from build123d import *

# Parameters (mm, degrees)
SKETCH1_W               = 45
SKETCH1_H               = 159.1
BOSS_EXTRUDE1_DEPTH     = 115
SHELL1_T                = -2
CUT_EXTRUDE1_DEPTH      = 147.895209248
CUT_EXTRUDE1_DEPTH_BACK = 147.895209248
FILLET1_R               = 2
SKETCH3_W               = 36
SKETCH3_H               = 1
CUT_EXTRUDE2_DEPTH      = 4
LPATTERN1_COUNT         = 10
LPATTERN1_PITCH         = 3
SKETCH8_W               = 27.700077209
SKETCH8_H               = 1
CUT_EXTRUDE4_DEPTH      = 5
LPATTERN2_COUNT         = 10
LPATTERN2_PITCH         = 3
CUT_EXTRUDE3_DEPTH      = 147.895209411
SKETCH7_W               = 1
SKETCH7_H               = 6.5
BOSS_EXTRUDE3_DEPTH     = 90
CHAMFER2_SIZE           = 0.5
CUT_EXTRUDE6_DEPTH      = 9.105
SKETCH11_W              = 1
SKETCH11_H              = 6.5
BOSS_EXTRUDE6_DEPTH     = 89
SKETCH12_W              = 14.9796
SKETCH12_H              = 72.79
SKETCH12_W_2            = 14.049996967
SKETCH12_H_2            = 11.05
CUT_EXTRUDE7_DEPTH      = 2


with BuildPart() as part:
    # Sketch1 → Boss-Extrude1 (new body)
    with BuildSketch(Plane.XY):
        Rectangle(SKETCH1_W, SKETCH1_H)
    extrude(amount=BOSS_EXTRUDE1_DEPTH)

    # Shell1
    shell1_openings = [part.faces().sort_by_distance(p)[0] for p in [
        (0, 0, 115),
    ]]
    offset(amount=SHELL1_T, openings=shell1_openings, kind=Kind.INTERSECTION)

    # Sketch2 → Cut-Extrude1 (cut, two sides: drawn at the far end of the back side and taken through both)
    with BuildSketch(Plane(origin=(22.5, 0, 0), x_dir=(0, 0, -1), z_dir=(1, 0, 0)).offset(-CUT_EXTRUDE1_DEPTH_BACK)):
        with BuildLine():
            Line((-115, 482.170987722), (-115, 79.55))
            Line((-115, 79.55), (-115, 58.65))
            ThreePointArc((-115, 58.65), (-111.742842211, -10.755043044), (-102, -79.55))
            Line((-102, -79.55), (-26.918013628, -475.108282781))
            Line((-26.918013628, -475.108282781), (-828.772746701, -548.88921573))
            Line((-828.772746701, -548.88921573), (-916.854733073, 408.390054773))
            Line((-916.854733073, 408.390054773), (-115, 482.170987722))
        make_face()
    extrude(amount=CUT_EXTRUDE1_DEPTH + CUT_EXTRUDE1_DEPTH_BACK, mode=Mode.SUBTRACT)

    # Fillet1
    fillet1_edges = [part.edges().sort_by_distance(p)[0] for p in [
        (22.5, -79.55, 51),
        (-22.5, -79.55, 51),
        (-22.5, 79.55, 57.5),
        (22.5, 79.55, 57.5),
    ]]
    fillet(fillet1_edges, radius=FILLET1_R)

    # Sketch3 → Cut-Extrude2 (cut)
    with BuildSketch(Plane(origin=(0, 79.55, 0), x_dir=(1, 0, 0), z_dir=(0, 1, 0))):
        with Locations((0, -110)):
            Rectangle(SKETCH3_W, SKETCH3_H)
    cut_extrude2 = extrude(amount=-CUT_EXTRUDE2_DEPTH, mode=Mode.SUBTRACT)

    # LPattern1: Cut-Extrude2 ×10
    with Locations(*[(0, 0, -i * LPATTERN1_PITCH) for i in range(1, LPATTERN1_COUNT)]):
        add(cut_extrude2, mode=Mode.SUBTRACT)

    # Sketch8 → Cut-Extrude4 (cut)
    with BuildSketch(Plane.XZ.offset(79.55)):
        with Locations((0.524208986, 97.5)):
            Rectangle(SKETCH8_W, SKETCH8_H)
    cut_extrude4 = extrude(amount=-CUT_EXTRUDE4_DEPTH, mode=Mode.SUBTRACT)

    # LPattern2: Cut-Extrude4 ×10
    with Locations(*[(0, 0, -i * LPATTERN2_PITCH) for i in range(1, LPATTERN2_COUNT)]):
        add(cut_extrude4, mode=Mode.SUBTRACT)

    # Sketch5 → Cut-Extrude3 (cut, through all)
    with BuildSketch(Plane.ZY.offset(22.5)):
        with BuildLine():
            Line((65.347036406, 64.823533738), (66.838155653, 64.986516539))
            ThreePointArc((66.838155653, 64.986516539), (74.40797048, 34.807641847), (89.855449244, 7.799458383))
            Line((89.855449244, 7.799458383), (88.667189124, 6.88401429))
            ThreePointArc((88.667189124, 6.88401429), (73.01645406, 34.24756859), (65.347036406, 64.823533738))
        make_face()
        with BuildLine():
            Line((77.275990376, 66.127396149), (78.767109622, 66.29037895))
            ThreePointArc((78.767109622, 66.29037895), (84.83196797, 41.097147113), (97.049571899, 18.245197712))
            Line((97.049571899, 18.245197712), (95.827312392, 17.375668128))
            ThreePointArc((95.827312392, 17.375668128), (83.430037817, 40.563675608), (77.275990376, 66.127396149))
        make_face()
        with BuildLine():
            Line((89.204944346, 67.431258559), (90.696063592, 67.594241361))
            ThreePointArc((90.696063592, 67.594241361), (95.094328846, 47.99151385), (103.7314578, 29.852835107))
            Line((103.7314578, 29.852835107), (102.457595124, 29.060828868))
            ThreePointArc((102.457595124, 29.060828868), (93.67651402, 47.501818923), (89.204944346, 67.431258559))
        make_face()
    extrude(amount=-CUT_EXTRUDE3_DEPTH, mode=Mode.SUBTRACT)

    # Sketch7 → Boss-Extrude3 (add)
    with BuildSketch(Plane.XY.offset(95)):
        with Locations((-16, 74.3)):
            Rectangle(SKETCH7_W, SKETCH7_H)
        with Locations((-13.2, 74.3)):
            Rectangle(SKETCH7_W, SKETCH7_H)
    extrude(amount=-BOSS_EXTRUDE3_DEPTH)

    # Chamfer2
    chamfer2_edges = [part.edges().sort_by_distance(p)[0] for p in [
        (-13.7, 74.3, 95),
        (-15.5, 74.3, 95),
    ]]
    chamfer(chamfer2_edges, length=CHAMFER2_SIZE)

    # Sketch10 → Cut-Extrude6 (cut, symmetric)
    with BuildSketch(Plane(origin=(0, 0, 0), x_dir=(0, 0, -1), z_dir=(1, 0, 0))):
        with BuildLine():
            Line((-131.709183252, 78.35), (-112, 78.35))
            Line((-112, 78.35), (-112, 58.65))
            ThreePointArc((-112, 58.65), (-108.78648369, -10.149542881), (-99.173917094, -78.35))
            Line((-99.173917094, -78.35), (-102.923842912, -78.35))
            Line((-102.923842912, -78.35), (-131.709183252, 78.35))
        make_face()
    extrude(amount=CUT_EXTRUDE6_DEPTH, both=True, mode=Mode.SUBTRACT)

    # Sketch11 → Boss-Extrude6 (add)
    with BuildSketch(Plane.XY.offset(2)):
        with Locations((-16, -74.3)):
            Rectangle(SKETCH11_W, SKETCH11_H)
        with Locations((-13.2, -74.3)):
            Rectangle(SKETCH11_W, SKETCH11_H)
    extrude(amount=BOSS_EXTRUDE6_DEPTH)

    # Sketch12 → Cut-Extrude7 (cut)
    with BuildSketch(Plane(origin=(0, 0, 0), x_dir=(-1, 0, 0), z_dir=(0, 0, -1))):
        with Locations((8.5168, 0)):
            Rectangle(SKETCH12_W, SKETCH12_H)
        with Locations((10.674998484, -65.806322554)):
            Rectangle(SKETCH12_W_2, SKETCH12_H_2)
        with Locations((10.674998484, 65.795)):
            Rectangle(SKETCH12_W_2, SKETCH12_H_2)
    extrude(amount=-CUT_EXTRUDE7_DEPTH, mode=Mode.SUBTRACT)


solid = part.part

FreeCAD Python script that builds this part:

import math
import FreeCAD as App
import Part
import Sketcher
from FreeCAD import Vector


def edges_at(feature, points):
    """Names of the edges that pass closest to the given points."""
    edges = feature.Shape.Edges
    near = lambda p: min(range(len(edges)), key=lambda i: edges[i].distToShape(Part.Vertex(*p))[0])
    return sorted({f"Edge{near(p) + 1}" for p in points})


def faces_at(feature, points):
    """Names of the faces that lie closest to the given points."""
    faces = feature.Shape.Faces
    near = lambda p: min(range(len(faces)), key=lambda i: faces[i].distToShape(Part.Vertex(*p))[0])
    return sorted({f"Face{near(p) + 1}" for p in points})

doc = App.newDocument("Part")
body = doc.addObject("PartDesign::Body", "Body")

# Sketch on XY plane
sketch1 = body.newObject("Sketcher::SketchObject", "Sketch")
sketch1.AttachmentSupport = (doc.getObject("XY_Plane"), [""])
sketch1.MapMode = "FlatFace"
sketch1.addGeometry(Part.LineSegment(Vector(-22.5, 79.55, 0), Vector(-22.5, -79.55, 0)), False)
sketch1.addGeometry(Part.LineSegment(Vector(-22.5, -79.55, 0), Vector(22.5, -79.55, 0)), False)
sketch1.addGeometry(Part.LineSegment(Vector(22.5, -79.55, 0), Vector(22.5, 79.55, 0)), False)
sketch1.addGeometry(Part.LineSegment(Vector(22.5, 79.55, 0), Vector(-22.5, 79.55, 0)), False)
sketch1.addConstraint(Sketcher.Constraint("Coincident", 0, 2, 1, 1))
sketch1.addConstraint(Sketcher.Constraint("Coincident", 1, 2, 2, 1))
sketch1.addConstraint(Sketcher.Constraint("Coincident", 2, 2, 3, 1))
sketch1.addConstraint(Sketcher.Constraint("Coincident", 3, 2, 0, 1))
sketch1.addConstraint(Sketcher.Constraint("Vertical", 0))
sketch1.addConstraint(Sketcher.Constraint("Horizontal", 1))
sketch1.addConstraint(Sketcher.Constraint("Vertical", 2))
sketch1.addConstraint(Sketcher.Constraint("Horizontal", 3))
sketch1.addConstraint(Sketcher.Constraint("Symmetric", 0, 2, 2, 2, -1, 1))
sketch1.addConstraint(Sketcher.Constraint("DistanceX", 1, 1, 1, 2, 45.0))
sketch1.addConstraint(Sketcher.Constraint("DistanceY", 0, 2, 0, 1, 159.1))
pad1 = body.newObject("PartDesign::Pad", "Pad")
pad1.Profile = sketch1
pad1.Length = 115
doc.recompute()

thickness = body.newObject("PartDesign::Thickness", "Thickness")
thickness.Base = (pad1, faces_at(pad1, [(0, 0, 115)]))
thickness.Value = 2
thickness.Reversed = True
thickness.Join = "Intersection"

# Sketch on YZ plane
sketch2 = body.newObject("Sketcher::SketchObject", "Sketch001")
sketch2.AttachmentSupport = (doc.getObject("YZ_Plane"), [""])
sketch2.MapMode = "FlatFace"
sketch2.AttachmentOffset = App.Placement(Vector(0, 0, 22.5), App.Rotation())
sketch2.addGeometry(Part.LineSegment(Vector(58.65, 115, 0), Vector(482.170988, 115, 0)), False)
sketch2.addGeometry(Part.LineSegment(Vector(482.170988, 115, 0), Vector(408.390055, 916.854733, 0)), False)
sketch2.addGeometry(Part.LineSegment(Vector(408.390055, 916.854733, 0), Vector(-548.889216, 828.772747, 0)), False)
sketch2.addGeometry(Part.LineSegment(Vector(-548.889216, 828.772747, 0), Vector(-475.108283, 26.918014, 0)), False)
sketch2.addGeometry(Part.LineSegment(Vector(-475.108283, 26.918014, 0), Vector(-79.55, 102, 0)), False)
sketch2.addGeometry(Part.ArcOfCircle(Part.Circle(Vector(58.65, -626.086154, 0), Vector(0, 0, 1), 741.086154), math.radians(90), math.radians(100.747609)), False)
sketch2.addConstraint(Sketcher.Constraint("Coincident", 0, 2, 1, 1))
sketch2.addConstraint(Sketcher.Constraint("Coincident", 1, 2, 2, 1))
sketch2.addConstraint(Sketcher.Constraint("Coincident", 2, 2, 3, 1))
sketch2.addConstraint(Sketcher.Constraint("Coincident", 3, 2, 4, 1))
sketch2.addConstraint(Sketcher.Constraint("Tangent", 4, 2, 5, 2))
sketch2.addConstraint(Sketcher.Constraint("Tangent", 5, 1, 0, 1))
sketch2.addConstraint(Sketcher.Constraint("Horizontal", 0))
sketch2.addConstraint(Sketcher.Constraint("Perpendicular", 1, 2))
sketch2.addConstraint(Sketcher.Constraint("Perpendicular", 2, 3))
sketch2.addConstraint(Sketcher.Constraint("Equal", 1, 3))
sketch2.addConstraint(Sketcher.Constraint("DistanceY", -1, 1, 0, 2, 115.0))
sketch2.addConstraint(Sketcher.Constraint("DistanceY", -1, 1, 4, 2, 102.0))
sketch2.addConstraint(Sketcher.Constraint("DistanceX", 4, 2, 5, 3, 138.2))
sketch2.addConstraint(Sketcher.Constraint("DistanceX", -1, 1, 5, 3, 58.65))
sketch2.addConstraint(Sketcher.Constraint("DistanceY", 5, 3, 2, 2, 1454.858901))
sketch2.addConstraint(Sketcher.Constraint("DistanceX", 0, 1, 0, 2, 423.520988))
sketch2.addConstraint(Sketcher.Constraint("DistanceX", 2, 2, 1, 2, 957.279271))
pocket1 = body.newObject("PartDesign::Pocket", "Pocket")
pocket1.Profile = sketch2
pocket1.Type = "ThroughAll"
pocket1.Midplane = True
doc.recompute()

fillet = body.newObject("PartDesign::Fillet", "Fillet")
fillet.Base = (pocket1, edges_at(pocket1, [
    (22.5, -79.55, 51),
    (-22.5, -79.55, 51),
    (-22.5, 79.55, 57.5),
    (22.5, 79.55, 57.5),
]))
fillet.Radius = 2

# Sketch on XZ plane
sketch3 = body.newObject("Sketcher::SketchObject", "Sketch002")
sketch3.AttachmentSupport = (doc.getObject("XZ_Plane"), [""])
sketch3.MapMode = "FlatFace"
sketch3.AttachmentOffset = App.Placement(Vector(0, 0, -79.55), App.Rotation())
sketch3.addGeometry(Part.LineSegment(Vector(-18, 109.5, 0), Vector(-18, 110.5, 0)), False)
sketch3.addGeometry(Part.LineSegment(Vector(-18, 110.5, 0), Vector(18, 110.5, 0)), False)
sketch3.addGeometry(Part.LineSegment(Vector(18, 110.5, 0), Vector(18, 109.5, 0)), False)
sketch3.addGeometry(Part.LineSegment(Vector(18, 109.5, 0), Vector(-18, 109.5, 0)), False)
sketch3.addConstraint(Sketcher.Constraint("Coincident", 0, 2, 1, 1))
sketch3.addConstraint(Sketcher.Constraint("Coincident", 1, 2, 2, 1))
sketch3.addConstraint(Sketcher.Constraint("Coincident", 2, 2, 3, 1))
sketch3.addConstraint(Sketcher.Constraint("Coincident", 3, 2, 0, 1))
sketch3.addConstraint(Sketcher.Constraint("Vertical", 0))
sketch3.addConstraint(Sketcher.Constraint("Horizontal", 1))
sketch3.addConstraint(Sketcher.Constraint("Vertical", 2))
sketch3.addConstraint(Sketcher.Constraint("Horizontal", 3))
sketch3.addConstraint(Sketcher.Constraint("DistanceX", 1, 1, 1, 2, 36.0))
sketch3.addConstraint(Sketcher.Constraint("DistanceY", 0, 1, 0, 2, 1.0))
sketch3.addConstraint(Sketcher.Constraint("DistanceX", 0, 2, -1, 1, 18.0))
sketch3.addConstraint(Sketcher.Constraint("DistanceY", -1, 1, 0, 2, 110.5))
pocket2 = body.newObject("PartDesign::Pocket", "Pocket001")
pocket2.Profile = sketch3
pocket2.Length = 4
pocket2.Reversed = True
doc.recompute()

linearpattern = body.newObject("PartDesign::LinearPattern", "LinearPattern")
linearpattern.Originals = [pocket2]
linearpattern.Direction = (doc.getObject("Z_Axis"), [""])
linearpattern.Mode = "offset"
linearpattern.Offset = 3
linearpattern.Occurrences = 10
linearpattern.Reversed = True
body.Tip = linearpattern

# Sketch on XZ plane
sketch4 = body.newObject("Sketcher::SketchObject", "Sketch003")
sketch4.AttachmentSupport = (doc.getObject("XZ_Plane"), [""])
sketch4.MapMode = "FlatFace"
sketch4.AttachmentOffset = App.Placement(Vector(0, 0, 79.55), App.Rotation())
sketch4.addGeometry(Part.LineSegment(Vector(-13.32583, 98, 0), Vector(-13.32583, 97, 0)), False)
sketch4.addGeometry(Part.LineSegment(Vector(-13.32583, 97, 0), Vector(14.374248, 97, 0)), False)
sketch4.addGeometry(Part.LineSegment(Vector(14.374248, 97, 0), Vector(14.374248, 98, 0)), False)
sketch4.addGeometry(Part.LineSegment(Vector(14.374248, 98, 0), Vector(-13.32583, 98, 0)), False)
sketch4.addConstraint(Sketcher.Constraint("Coincident", 0, 2, 1, 1))
sketch4.addConstraint(Sketcher.Constraint("Coincident", 1, 2, 2, 1))
sketch4.addConstraint(Sketcher.Constraint("Coincident", 2, 2, 3, 1))
sketch4.addConstraint(Sketcher.Constraint("Coincident", 3, 2, 0, 1))
sketch4.addConstraint(Sketcher.Constraint("Vertical", 0))
sketch4.addConstraint(Sketcher.Constraint("Horizontal", 1))
sketch4.addConstraint(Sketcher.Constraint("Vertical", 2))
sketch4.addConstraint(Sketcher.Constraint("Horizontal", 3))
sketch4.addConstraint(Sketcher.Constraint("DistanceY", 0, 2, 0, 1, 1.0))
sketch4.addConstraint(Sketcher.Constraint("DistanceY", -1, 1, 0, 2, 97.0))
sketch4.addConstraint(Sketcher.Constraint("DistanceX", 1, 1, 1, 2, 27.700077))
sketch4.addConstraint(Sketcher.Constraint("DistanceX", 0, 2, -1, 1, 13.32583))
pocket3 = body.newObject("PartDesign::Pocket", "Pocket002")
pocket3.Profile = sketch4
pocket3.Length = 5
doc.recompute()

linearpattern2 = body.newObject("PartDesign::LinearPattern", "LinearPattern001")
linearpattern2.Originals = [pocket3]
linearpattern2.Direction = (doc.getObject("Z_Axis"), [""])
linearpattern2.Mode = "offset"
linearpattern2.Offset = 3
linearpattern2.Occurrences = 10
linearpattern2.Reversed = True
body.Tip = linearpattern2

# Sketch on YZ plane
sketch5 = body.newObject("Sketcher::SketchObject", "Sketch004")
sketch5.AttachmentSupport = (doc.getObject("YZ_Plane"), [""])
sketch5.MapMode = "FlatFace"
sketch5.AttachmentOffset = App.Placement(Vector(0, 0, -22.5), App.Rotation())
sketch5.addGeometry(Part.LineSegment(Vector(64.986517, 66.838156, 0), Vector(64.823534, 65.347036, 0)), False)
sketch5.addGeometry(Part.ArcOfCircle(Part.Circle(Vector(77.373209, 180.163218, 0), Vector(0, 0, 1), 115.5), math.radians(-127.610913), math.radians(-96.2378)), False)
sketch5.addGeometry(Part.LineSegment(Vector(6.884014, 88.667189, 0), Vector(7.799458, 89.855449, 0)), False)
sketch5.addGeometry(Part.ArcOfCircle(Part.Circle(Vector(77.373209, 180.163218, 0), Vector(0, 0, 1), 114), math.radians(-127.610913), math.radians(-96.2378)), False)
sketch5.addGeometry(Part.LineSegment(Vector(66.290379, 78.76711, 0), Vector(66.127396, 77.27599, 0)), False)
sketch5.addGeometry(Part.ArcOfCircle(Part.Circle(Vector(77.373209, 180.163218, 0), Vector(0, 0, 1), 103.5), math.radians(-125.428488), math.radians(-96.2378)), False)
sketch5.addGeometry(Part.LineSegment(Vector(17.375668, 95.827312, 0), Vector(18.245198, 97.049572, 0)), False)
sketch5.addGeometry(Part.ArcOfCircle(Part.Circle(Vector(77.373209, 180.163218, 0), Vector(0, 0, 1), 102), math.radians(-125.428488), math.radians(-96.2378)), False)
sketch5.addGeometry(Part.LineSegment(Vector(67.594241, 90.696064, 0), Vector(67.431259, 89.204944, 0)), False)
sketch5.addGeometry(Part.ArcOfCircle(Part.Circle(Vector(77.373209, 180.163218, 0), Vector(0, 0, 1), 91.5), math.radians(-121.870703), math.radians(-96.2378)), False)
sketch5.addGeometry(Part.LineSegment(Vector(29.060829, 102.457595, 0), Vector(29.852835, 103.731458, 0)), False)
sketch5.addGeometry(Part.ArcOfCircle(Part.Circle(Vector(77.373209, 180.163218, 0), Vector(0, 0, 1), 90), math.radians(-121.870703), math.radians(-96.2378)), False)
sketch5.addConstraint(Sketcher.Constraint("Coincident", 0, 2, 1, 2))
sketch5.addConstraint(Sketcher.Constraint("Coincident", 1, 1, 2, 1))
sketch5.addConstraint(Sketcher.Constraint("Coincident", 2, 2, 3, 1))
sketch5.addConstraint(Sketcher.Constraint("Coincident", 3, 2, 0, 1))
sketch5.addConstraint(Sketcher.Constraint("Coincident", 4, 2, 5, 2))
sketch5.addConstraint(Sketcher.Constraint("Coincident", 5, 1, 6, 1))
sketch5.addConstraint(Sketcher.Constraint("Coincident", 6, 2, 7, 1))
sketch5.addConstraint(Sketcher.Constraint("Coincident", 7, 2, 4, 1))
sketch5.addConstraint(Sketcher.Constraint("Coincident", 8, 2, 9, 2))
sketch5.addConstraint(Sketcher.Constraint("Coincident", 9, 1, 10, 1))
sketch5.addConstraint(Sketcher.Constraint("Coincident", 10, 2, 11, 1))
sketch5.addConstraint(Sketcher.Constraint("Coincident", 11, 2, 8, 1))
sketch5.addConstraint(Sketcher.Constraint("Coincident", 3, 3, 1, 3))
sketch5.addConstraint(Sketcher.Constraint("Coincident", 5, 3, 1, 3))
sketch5.addConstraint(Sketcher.Constraint("Coincident", 7, 3, 1, 3))
sketch5.addConstraint(Sketcher.Constraint("Coincident", 9, 3, 1, 3))
sketch5.addConstraint(Sketcher.Constraint("Coincident", 11, 3, 1, 3))
sketch5.addConstraint(Sketcher.Constraint("Parallel", 0, 4))
sketch5.addConstraint(Sketcher.Constraint("Parallel", 4, 8))
sketch5.addConstraint(Sketcher.Constraint("Equal", 2, 4))
sketch5.addConstraint(Sketcher.Constraint("Equal", 6, 8))
sketch5.addConstraint(Sketcher.Constraint("Radius", 3, 114.0))
sketch5.addConstraint(Sketcher.Constraint("Radius", 7, 102.0))
sketch5.addConstraint(Sketcher.Constraint("Radius", 11, 90.0))
sketch5.addConstraint(Sketcher.Constraint("Radius", 1, 115.5))
sketch5.addConstraint(Sketcher.Constraint("DistanceY", 4, 2, 1, 1, 11.391199))
sketch5.addConstraint(Sketcher.Constraint("DistanceX", 6, 2, 4, 2, 47.882198))
sketch5.addConstraint(Sketcher.Constraint("DistanceX", -1, 1, 1, 3, 77.373209))
sketch5.addConstraint(Sketcher.Constraint("DistanceY", -1, 1, 1, 3, 180.163218))
sketch5.addConstraint(Sketcher.Constraint("DistanceX", -1, 1, 2, 2, 7.799458))
sketch5.addConstraint(Sketcher.Constraint("DistanceY", -1, 1, 4, 2, 77.27599))
sketch5.addConstraint(Sketcher.Constraint("DistanceX", -1, 1, 5, 1, 17.375668))
sketch5.addConstraint(Sketcher.Constraint("DistanceX", -1, 1, 7, 2, 66.290379))
sketch5.addConstraint(Sketcher.Constraint("DistanceX", -1, 1, 8, 2, 67.431259))
sketch5.addConstraint(Sketcher.Constraint("DistanceX", -1, 1, 9, 1, 29.060829))
sketch5.addConstraint(Sketcher.Constraint("DistanceY", 0, 2, 9, 3, 114.816182))
sketch5.addConstraint(Sketcher.Constraint("DistanceY", 2, 2, 10, 2, 13.876009))
pocket4 = body.newObject("PartDesign::Pocket", "Pocket003")
pocket4.Profile = sketch5
pocket4.Type = "ThroughAll"
pocket4.Reversed = True

# Sketch on XY plane
sketch6 = body.newObject("Sketcher::SketchObject", "Sketch005")
sketch6.AttachmentSupport = (doc.getObject("XY_Plane"), [""])
sketch6.MapMode = "FlatFace"
sketch6.AttachmentOffset = App.Placement(Vector(0, 0, 95), App.Rotation())
sketch6.addGeometry(Part.LineSegment(Vector(-16.5, 77.55, 0), Vector(-16.5, 71.05, 0)), False)
sketch6.addGeometry(Part.LineSegment(Vector(-16.5, 71.05, 0), Vector(-15.5, 71.05, 0)), False)
sketch6.addGeometry(Part.LineSegment(Vector(-15.5, 71.05, 0), Vector(-15.5, 77.55, 0)), False)
sketch6.addGeometry(Part.LineSegment(Vector(-15.5, 77.55, 0), Vector(-16.5, 77.55, 0)), False)
sketch6.addGeometry(Part.LineSegment(Vector(-13.7, 77.55, 0), Vector(-13.7, 71.05, 0)), False)
sketch6.addGeometry(Part.LineSegment(Vector(-13.7, 71.05, 0), Vector(-12.7, 71.05, 0)), False)
sketch6.addGeometry(Part.LineSegment(Vector(-12.7, 71.05, 0), Vector(-12.7, 77.55, 0)), False)
sketch6.addGeometry(Part.LineSegment(Vector(-12.7, 77.55, 0), Vector(-13.7, 77.55, 0)), False)
sketch6.addConstraint(Sketcher.Constraint("Coincident", 0, 2, 1, 1))
sketch6.addConstraint(Sketcher.Constraint("Coincident", 1, 2, 2, 1))
sketch6.addConstraint(Sketcher.Constraint("Coincident", 2, 2, 3, 1))
sketch6.addConstraint(Sketcher.Constraint("Coincident", 3, 2, 0, 1))
sketch6.addConstraint(Sketcher.Constraint("Coincident", 4, 2, 5, 1))
sketch6.addConstraint(Sketcher.Constraint("Coincident", 5, 2, 6, 1))
sketch6.addConstraint(Sketcher.Constraint("Coincident", 6, 2, 7, 1))
sketch6.addConstraint(Sketcher.Constraint("Coincident", 7, 2, 4, 1))
sketch6.addConstraint(Sketcher.Constraint("Vertical", 0))
sketch6.addConstraint(Sketcher.Constraint("Horizontal", 1))
sketch6.addConstraint(Sketcher.Constraint("Vertical", 2))
sketch6.addConstraint(Sketcher.Constraint("Horizontal", 3))
sketch6.addConstraint(Sketcher.Constraint("Vertical", 4))
sketch6.addConstraint(Sketcher.Constraint("Horizontal", 5))
sketch6.addConstraint(Sketcher.Constraint("Vertical", 6))
sketch6.addConstraint(Sketcher.Constraint("Horizontal", 7))
sketch6.addConstraint(Sketcher.Constraint("Horizontal", 1, 2, 4, 2))
sketch6.addConstraint(Sketcher.Constraint("Horizontal", 3, 2, 6, 2))
sketch6.addConstraint(Sketcher.Constraint("Equal", 3, 5))
sketch6.addConstraint(Sketcher.Constraint("DistanceX", 1, 1, 1, 2, 1.0))
sketch6.addConstraint(Sketcher.Constraint("DistanceY", 0, 2, 0, 1, 6.5))
sketch6.addConstraint(Sketcher.Constraint("DistanceX", 0, 2, -1, 1, 16.5))
sketch6.addConstraint(Sketcher.Constraint("DistanceX", 4, 2, -1, 1, 13.7))
sketch6.addConstraint(Sketcher.Constraint("DistanceY", -1, 1, 0, 2, 71.05))
pad2 = body.newObject("PartDesign::Pad", "Pad001")
pad2.Profile = sketch6
pad2.Length = 90
pad2.Reversed = True
doc.recompute()

chamfer = body.newObject("PartDesign::Chamfer", "Chamfer")
chamfer.Base = (pad2, edges_at(pad2, [(-13.7, 74.3, 95), (-15.5, 74.3, 95)]))
chamfer.Size = 0.5

# Sketch on YZ plane
sketch7 = body.newObject("Sketcher::SketchObject", "Sketch006")
sketch7.AttachmentSupport = (doc.getObject("YZ_Plane"), [""])
sketch7.MapMode = "FlatFace"
sketch7.addGeometry(Part.LineSegment(Vector(78.35, 112, 0), Vector(78.35, 131.709183, 0)), False)
sketch7.addGeometry(Part.LineSegment(Vector(78.35, 131.709183, 0), Vector(-78.35, 102.923843, 0)), False)
sketch7.addGeometry(Part.LineSegment(Vector(-78.35, 102.923843, 0), Vector(-78.35, 99.173917, 0)), False)
sketch7.addGeometry(Part.ArcOfCircle(Part.Circle(Vector(58.65, -626.086154, 0), Vector(0, 0, 1), 738.086154), math.radians(90), math.radians(100.697001)), False)
sketch7.addGeometry(Part.LineSegment(Vector(58.65, 112, 0), Vector(78.35, 112, 0)), False)
sketch7.addConstraint(Sketcher.Constraint("Coincident", 0, 2, 1, 1))
sketch7.addConstraint(Sketcher.Constraint("Coincident", 1, 2, 2, 1))
sketch7.addConstraint(Sketcher.Constraint("Coincident", 2, 2, 3, 2))
sketch7.addConstraint(Sketcher.Constraint("Tangent", 3, 1, 4, 1))
sketch7.addConstraint(Sketcher.Constraint("Coincident", 4, 2, 0, 1))
sketch7.addConstraint(Sketcher.Constraint("Vertical", 0))
sketch7.addConstraint(Sketcher.Constraint("Vertical", 2))
sketch7.addConstraint(Sketcher.Constraint("Horizontal", 4))
sketch7.addConstraint(Sketcher.Constraint("DistanceX", 4, 1, 4, 2, 19.7))
sketch7.addConstraint(Sketcher.Constraint("DistanceY", -1, 1, 3, 1, 112.0))
sketch7.addConstraint(Sketcher.Constraint("DistanceX", 1, 2, 3, 3, 137.0))
sketch7.addConstraint(Sketcher.Constraint("DistanceX", -1, 1, 3, 3, 58.65))
sketch7.addConstraint(Sketcher.Constraint("Radius", 3, 738.086154))
sketch7.addConstraint(Sketcher.Constraint("DistanceY", 0, 1, 0, 2, 19.709183))
sketch7.addConstraint(Sketcher.Constraint("DistanceY", 2, 2, 2, 1, 3.749926))
pocket5 = body.newObject("PartDesign::Pocket", "Pocket004")
pocket5.Profile = sketch7
pocket5.Length = 18.21
pocket5.Midplane = True

# Sketch on XY plane
sketch8 = body.newObject("Sketcher::SketchObject", "Sketch007")
sketch8.AttachmentSupport = (doc.getObject("XY_Plane"), [""])
sketch8.MapMode = "FlatFace"
sketch8.AttachmentOffset = App.Placement(Vector(0, 0, 2), App.Rotation())
sketch8.addGeometry(Part.LineSegment(Vector(-16.5, -71.05, 0), Vector(-16.5, -77.55, 0)), False)
sketch8.addGeometry(Part.LineSegment(Vector(-16.5, -77.55, 0), Vector(-15.5, -77.55, 0)), False)
sketch8.addGeometry(Part.LineSegment(Vector(-15.5, -77.55, 0), Vector(-15.5, -71.05, 0)), False)
sketch8.addGeometry(Part.LineSegment(Vector(-15.5, -71.05, 0), Vector(-16.5, -71.05, 0)), False)
sketch8.addGeometry(Part.LineSegment(Vector(-13.7, -71.05, 0), Vector(-13.7, -77.55, 0)), False)
sketch8.addGeometry(Part.LineSegment(Vector(-13.7, -77.55, 0), Vector(-12.7, -77.55, 0)), False)
sketch8.addGeometry(Part.LineSegment(Vector(-12.7, -77.55, 0), Vector(-12.7, -71.05, 0)), False)
sketch8.addGeometry(Part.LineSegment(Vector(-12.7, -71.05, 0), Vector(-13.7, -71.05, 0)), False)
sketch8.addConstraint(Sketcher.Constraint("Coincident", 0, 2, 1, 1))
sketch8.addConstraint(Sketcher.Constraint("Coincident", 1, 2, 2, 1))
sketch8.addConstraint(Sketcher.Constraint("Coincident", 2, 2, 3, 1))
sketch8.addConstraint(Sketcher.Constraint("Coincident", 3, 2, 0, 1))
sketch8.addConstraint(Sketcher.Constraint("Coincident", 4, 2, 5, 1))
sketch8.addConstraint(Sketcher.Constraint("Coincident", 5, 2, 6, 1))
sketch8.addConstraint(Sketcher.Constraint("Coincident", 6, 2, 7, 1))
sketch8.addConstraint(Sketcher.Constraint("Coincident", 7, 2, 4, 1))
sketch8.addConstraint(Sketcher.Constraint("Vertical", 0))
sketch8.addConstraint(Sketcher.Constraint("Horizontal", 1))
sketch8.addConstraint(Sketcher.Constraint("Vertical", 2))
sketch8.addConstraint(Sketcher.Constraint("Horizontal", 3))
sketch8.addConstraint(Sketcher.Constraint("Vertical", 4))
sketch8.addConstraint(Sketcher.Constraint("Horizontal", 5))
sketch8.addConstraint(Sketcher.Constraint("Vertical", 6))
sketch8.addConstraint(Sketcher.Constraint("Horizontal", 7))
sketch8.addConstraint(Sketcher.Constraint("Horizontal", 1, 2, 4, 2))
sketch8.addConstraint(Sketcher.Constraint("Horizontal", 3, 2, 6, 2))
sketch8.addConstraint(Sketcher.Constraint("Equal", 3, 5))
sketch8.addConstraint(Sketcher.Constraint("DistanceX", 1, 1, 1, 2, 1.0))
sketch8.addConstraint(Sketcher.Constraint("DistanceY", 0, 2, 0, 1, 6.5))
sketch8.addConstraint(Sketcher.Constraint("DistanceX", 0, 2, -1, 1, 16.5))
sketch8.addConstraint(Sketcher.Constraint("DistanceX", 4, 2, -1, 1, 13.7))
sketch8.addConstraint(Sketcher.Constraint("DistanceY", 0, 2, -1, 1, 77.55))
pad3 = body.newObject("PartDesign::Pad", "Pad002")
pad3.Profile = sketch8
pad3.Length = 89

# Sketch on XY plane
sketch9 = body.newObject("Sketcher::SketchObject", "Sketch008")
sketch9.AttachmentSupport = (doc.getObject("XY_Plane"), [""])
sketch9.MapMode = "FlatFace"
sketch9.addGeometry(Part.LineSegment(Vector(-1.027, 36.395, 0), Vector(-1.027, -36.395, 0)), False)
sketch9.addGeometry(Part.LineSegment(Vector(-1.027, -36.395, 0), Vector(-16.0066, -36.395, 0)), False)
sketch9.addGeometry(Part.LineSegment(Vector(-16.0066, -36.395, 0), Vector(-16.0066, 36.395, 0)), False)
sketch9.addGeometry(Part.LineSegment(Vector(-16.0066, 36.395, 0), Vector(-1.027, 36.395, 0)), False)
sketch9.addGeometry(Part.LineSegment(Vector(-3.65, -60.281323, 0), Vector(-3.65, -71.331323, 0)), False)
sketch9.addGeometry(Part.LineSegment(Vector(-3.65, -71.331323, 0), Vector(-17.699997, -71.331323, 0)), False)
sketch9.addGeometry(Part.LineSegment(Vector(-17.699997, -71.331323, 0), Vector(-17.699997, -60.281323, 0)), False)
sketch9.addGeometry(Part.LineSegment(Vector(-17.699997, -60.281323, 0), Vector(-3.65, -60.281323, 0)), False)
sketch9.addGeometry(Part.LineSegment(Vector(-3.65, 71.32, 0), Vector(-3.65, 60.27, 0)), False)
sketch9.addGeometry(Part.LineSegment(Vector(-3.65, 60.27, 0), Vector(-17.699997, 60.27, 0)), False)
sketch9.addGeometry(Part.LineSegment(Vector(-17.699997, 60.27, 0), Vector(-17.699997, 71.32, 0)), False)
sketch9.addGeometry(Part.LineSegment(Vector(-17.699997, 71.32, 0), Vector(-3.65, 71.32, 0)), False)
sketch9.addConstraint(Sketcher.Constraint("Coincident", 0, 2, 1, 1))
sketch9.addConstraint(Sketcher.Constraint("Coincident", 1, 2, 2, 1))
sketch9.addConstraint(Sketcher.Constraint("Coincident", 2, 2, 3, 1))
sketch9.addConstraint(Sketcher.Constraint("Coincident", 3, 2, 0, 1))
sketch9.addConstraint(Sketcher.Constraint("Coincident", 4, 2, 5, 1))
sketch9.addConstraint(Sketcher.Constraint("Coincident", 5, 2, 6, 1))
sketch9.addConstraint(Sketcher.Constraint("Coincident", 6, 2, 7, 1))
sketch9.addConstraint(Sketcher.Constraint("Coincident", 7, 2, 4, 1))
sketch9.addConstraint(Sketcher.Constraint("Coincident", 8, 2, 9, 1))
sketch9.addConstraint(Sketcher.Constraint("Coincident", 9, 2, 10, 1))
sketch9.addConstraint(Sketcher.Constraint("Coincident", 10, 2, 11, 1))
sketch9.addConstraint(Sketcher.Constraint("Coincident", 11, 2, 8, 1))
sketch9.addConstraint(Sketcher.Constraint("Vertical", 0))
sketch9.addConstraint(Sketcher.Constraint("Horizontal", 1))
sketch9.addConstraint(Sketcher.Constraint("Vertical", 2))
sketch9.addConstraint(Sketcher.Constraint("Horizontal", 3))
sketch9.addConstraint(Sketcher.Constraint("Vertical", 4))
sketch9.addConstraint(Sketcher.Constraint("Horizontal", 5))
sketch9.addConstraint(Sketcher.Constraint("Vertical", 6))
sketch9.addConstraint(Sketcher.Constraint("Horizontal", 7))
sketch9.addConstraint(Sketcher.Constraint("Vertical", 8))
sketch9.addConstraint(Sketcher.Constraint("Horizontal", 9))
sketch9.addConstraint(Sketcher.Constraint("Vertical", 10))
sketch9.addConstraint(Sketcher.Constraint("Horizontal", 11))
sketch9.addConstraint(Sketcher.Constraint("Vertical", 7, 2, 8, 2))
sketch9.addConstraint(Sketcher.Constraint("Vertical", 6, 2, 9, 2))
sketch9.addConstraint(Sketcher.Constraint("Equal", 6, 8))
sketch9.addConstraint(Sketcher.Constraint("DistanceY", 0, 2, 0, 1, 72.79))
sketch9.addConstraint(Sketcher.Constraint("DistanceY", 4, 2, 4, 1, 11.05))
sketch9.addConstraint(Sketcher.Constraint("DistanceX", 4, 2, -1, 1, 3.65))
sketch9.addConstraint(Sketcher.Constraint("DistanceY", -1, 1, 8, 2, 60.27))
sketch9.addConstraint(Sketcher.Constraint("DistanceX", 1, 2, 1, 1, 14.9796))
sketch9.addConstraint(Sketcher.Constraint("DistanceX", 0, 2, -1, 1, 1.027))
sketch9.addConstraint(Sketcher.Constraint("DistanceY", 0, 2, -1, 1, 36.395))
sketch9.addConstraint(Sketcher.Constraint("DistanceX", 5, 2, 5, 1, 14.049997))
sketch9.addConstraint(Sketcher.Constraint("DistanceY", 4, 2, -1, 1, 71.331323))
pocket6 = body.newObject("PartDesign::Pocket", "Pocket005")
pocket6.Profile = sketch9
pocket6.Length = 2
pocket6.Reversed = True

doc.recompute()
